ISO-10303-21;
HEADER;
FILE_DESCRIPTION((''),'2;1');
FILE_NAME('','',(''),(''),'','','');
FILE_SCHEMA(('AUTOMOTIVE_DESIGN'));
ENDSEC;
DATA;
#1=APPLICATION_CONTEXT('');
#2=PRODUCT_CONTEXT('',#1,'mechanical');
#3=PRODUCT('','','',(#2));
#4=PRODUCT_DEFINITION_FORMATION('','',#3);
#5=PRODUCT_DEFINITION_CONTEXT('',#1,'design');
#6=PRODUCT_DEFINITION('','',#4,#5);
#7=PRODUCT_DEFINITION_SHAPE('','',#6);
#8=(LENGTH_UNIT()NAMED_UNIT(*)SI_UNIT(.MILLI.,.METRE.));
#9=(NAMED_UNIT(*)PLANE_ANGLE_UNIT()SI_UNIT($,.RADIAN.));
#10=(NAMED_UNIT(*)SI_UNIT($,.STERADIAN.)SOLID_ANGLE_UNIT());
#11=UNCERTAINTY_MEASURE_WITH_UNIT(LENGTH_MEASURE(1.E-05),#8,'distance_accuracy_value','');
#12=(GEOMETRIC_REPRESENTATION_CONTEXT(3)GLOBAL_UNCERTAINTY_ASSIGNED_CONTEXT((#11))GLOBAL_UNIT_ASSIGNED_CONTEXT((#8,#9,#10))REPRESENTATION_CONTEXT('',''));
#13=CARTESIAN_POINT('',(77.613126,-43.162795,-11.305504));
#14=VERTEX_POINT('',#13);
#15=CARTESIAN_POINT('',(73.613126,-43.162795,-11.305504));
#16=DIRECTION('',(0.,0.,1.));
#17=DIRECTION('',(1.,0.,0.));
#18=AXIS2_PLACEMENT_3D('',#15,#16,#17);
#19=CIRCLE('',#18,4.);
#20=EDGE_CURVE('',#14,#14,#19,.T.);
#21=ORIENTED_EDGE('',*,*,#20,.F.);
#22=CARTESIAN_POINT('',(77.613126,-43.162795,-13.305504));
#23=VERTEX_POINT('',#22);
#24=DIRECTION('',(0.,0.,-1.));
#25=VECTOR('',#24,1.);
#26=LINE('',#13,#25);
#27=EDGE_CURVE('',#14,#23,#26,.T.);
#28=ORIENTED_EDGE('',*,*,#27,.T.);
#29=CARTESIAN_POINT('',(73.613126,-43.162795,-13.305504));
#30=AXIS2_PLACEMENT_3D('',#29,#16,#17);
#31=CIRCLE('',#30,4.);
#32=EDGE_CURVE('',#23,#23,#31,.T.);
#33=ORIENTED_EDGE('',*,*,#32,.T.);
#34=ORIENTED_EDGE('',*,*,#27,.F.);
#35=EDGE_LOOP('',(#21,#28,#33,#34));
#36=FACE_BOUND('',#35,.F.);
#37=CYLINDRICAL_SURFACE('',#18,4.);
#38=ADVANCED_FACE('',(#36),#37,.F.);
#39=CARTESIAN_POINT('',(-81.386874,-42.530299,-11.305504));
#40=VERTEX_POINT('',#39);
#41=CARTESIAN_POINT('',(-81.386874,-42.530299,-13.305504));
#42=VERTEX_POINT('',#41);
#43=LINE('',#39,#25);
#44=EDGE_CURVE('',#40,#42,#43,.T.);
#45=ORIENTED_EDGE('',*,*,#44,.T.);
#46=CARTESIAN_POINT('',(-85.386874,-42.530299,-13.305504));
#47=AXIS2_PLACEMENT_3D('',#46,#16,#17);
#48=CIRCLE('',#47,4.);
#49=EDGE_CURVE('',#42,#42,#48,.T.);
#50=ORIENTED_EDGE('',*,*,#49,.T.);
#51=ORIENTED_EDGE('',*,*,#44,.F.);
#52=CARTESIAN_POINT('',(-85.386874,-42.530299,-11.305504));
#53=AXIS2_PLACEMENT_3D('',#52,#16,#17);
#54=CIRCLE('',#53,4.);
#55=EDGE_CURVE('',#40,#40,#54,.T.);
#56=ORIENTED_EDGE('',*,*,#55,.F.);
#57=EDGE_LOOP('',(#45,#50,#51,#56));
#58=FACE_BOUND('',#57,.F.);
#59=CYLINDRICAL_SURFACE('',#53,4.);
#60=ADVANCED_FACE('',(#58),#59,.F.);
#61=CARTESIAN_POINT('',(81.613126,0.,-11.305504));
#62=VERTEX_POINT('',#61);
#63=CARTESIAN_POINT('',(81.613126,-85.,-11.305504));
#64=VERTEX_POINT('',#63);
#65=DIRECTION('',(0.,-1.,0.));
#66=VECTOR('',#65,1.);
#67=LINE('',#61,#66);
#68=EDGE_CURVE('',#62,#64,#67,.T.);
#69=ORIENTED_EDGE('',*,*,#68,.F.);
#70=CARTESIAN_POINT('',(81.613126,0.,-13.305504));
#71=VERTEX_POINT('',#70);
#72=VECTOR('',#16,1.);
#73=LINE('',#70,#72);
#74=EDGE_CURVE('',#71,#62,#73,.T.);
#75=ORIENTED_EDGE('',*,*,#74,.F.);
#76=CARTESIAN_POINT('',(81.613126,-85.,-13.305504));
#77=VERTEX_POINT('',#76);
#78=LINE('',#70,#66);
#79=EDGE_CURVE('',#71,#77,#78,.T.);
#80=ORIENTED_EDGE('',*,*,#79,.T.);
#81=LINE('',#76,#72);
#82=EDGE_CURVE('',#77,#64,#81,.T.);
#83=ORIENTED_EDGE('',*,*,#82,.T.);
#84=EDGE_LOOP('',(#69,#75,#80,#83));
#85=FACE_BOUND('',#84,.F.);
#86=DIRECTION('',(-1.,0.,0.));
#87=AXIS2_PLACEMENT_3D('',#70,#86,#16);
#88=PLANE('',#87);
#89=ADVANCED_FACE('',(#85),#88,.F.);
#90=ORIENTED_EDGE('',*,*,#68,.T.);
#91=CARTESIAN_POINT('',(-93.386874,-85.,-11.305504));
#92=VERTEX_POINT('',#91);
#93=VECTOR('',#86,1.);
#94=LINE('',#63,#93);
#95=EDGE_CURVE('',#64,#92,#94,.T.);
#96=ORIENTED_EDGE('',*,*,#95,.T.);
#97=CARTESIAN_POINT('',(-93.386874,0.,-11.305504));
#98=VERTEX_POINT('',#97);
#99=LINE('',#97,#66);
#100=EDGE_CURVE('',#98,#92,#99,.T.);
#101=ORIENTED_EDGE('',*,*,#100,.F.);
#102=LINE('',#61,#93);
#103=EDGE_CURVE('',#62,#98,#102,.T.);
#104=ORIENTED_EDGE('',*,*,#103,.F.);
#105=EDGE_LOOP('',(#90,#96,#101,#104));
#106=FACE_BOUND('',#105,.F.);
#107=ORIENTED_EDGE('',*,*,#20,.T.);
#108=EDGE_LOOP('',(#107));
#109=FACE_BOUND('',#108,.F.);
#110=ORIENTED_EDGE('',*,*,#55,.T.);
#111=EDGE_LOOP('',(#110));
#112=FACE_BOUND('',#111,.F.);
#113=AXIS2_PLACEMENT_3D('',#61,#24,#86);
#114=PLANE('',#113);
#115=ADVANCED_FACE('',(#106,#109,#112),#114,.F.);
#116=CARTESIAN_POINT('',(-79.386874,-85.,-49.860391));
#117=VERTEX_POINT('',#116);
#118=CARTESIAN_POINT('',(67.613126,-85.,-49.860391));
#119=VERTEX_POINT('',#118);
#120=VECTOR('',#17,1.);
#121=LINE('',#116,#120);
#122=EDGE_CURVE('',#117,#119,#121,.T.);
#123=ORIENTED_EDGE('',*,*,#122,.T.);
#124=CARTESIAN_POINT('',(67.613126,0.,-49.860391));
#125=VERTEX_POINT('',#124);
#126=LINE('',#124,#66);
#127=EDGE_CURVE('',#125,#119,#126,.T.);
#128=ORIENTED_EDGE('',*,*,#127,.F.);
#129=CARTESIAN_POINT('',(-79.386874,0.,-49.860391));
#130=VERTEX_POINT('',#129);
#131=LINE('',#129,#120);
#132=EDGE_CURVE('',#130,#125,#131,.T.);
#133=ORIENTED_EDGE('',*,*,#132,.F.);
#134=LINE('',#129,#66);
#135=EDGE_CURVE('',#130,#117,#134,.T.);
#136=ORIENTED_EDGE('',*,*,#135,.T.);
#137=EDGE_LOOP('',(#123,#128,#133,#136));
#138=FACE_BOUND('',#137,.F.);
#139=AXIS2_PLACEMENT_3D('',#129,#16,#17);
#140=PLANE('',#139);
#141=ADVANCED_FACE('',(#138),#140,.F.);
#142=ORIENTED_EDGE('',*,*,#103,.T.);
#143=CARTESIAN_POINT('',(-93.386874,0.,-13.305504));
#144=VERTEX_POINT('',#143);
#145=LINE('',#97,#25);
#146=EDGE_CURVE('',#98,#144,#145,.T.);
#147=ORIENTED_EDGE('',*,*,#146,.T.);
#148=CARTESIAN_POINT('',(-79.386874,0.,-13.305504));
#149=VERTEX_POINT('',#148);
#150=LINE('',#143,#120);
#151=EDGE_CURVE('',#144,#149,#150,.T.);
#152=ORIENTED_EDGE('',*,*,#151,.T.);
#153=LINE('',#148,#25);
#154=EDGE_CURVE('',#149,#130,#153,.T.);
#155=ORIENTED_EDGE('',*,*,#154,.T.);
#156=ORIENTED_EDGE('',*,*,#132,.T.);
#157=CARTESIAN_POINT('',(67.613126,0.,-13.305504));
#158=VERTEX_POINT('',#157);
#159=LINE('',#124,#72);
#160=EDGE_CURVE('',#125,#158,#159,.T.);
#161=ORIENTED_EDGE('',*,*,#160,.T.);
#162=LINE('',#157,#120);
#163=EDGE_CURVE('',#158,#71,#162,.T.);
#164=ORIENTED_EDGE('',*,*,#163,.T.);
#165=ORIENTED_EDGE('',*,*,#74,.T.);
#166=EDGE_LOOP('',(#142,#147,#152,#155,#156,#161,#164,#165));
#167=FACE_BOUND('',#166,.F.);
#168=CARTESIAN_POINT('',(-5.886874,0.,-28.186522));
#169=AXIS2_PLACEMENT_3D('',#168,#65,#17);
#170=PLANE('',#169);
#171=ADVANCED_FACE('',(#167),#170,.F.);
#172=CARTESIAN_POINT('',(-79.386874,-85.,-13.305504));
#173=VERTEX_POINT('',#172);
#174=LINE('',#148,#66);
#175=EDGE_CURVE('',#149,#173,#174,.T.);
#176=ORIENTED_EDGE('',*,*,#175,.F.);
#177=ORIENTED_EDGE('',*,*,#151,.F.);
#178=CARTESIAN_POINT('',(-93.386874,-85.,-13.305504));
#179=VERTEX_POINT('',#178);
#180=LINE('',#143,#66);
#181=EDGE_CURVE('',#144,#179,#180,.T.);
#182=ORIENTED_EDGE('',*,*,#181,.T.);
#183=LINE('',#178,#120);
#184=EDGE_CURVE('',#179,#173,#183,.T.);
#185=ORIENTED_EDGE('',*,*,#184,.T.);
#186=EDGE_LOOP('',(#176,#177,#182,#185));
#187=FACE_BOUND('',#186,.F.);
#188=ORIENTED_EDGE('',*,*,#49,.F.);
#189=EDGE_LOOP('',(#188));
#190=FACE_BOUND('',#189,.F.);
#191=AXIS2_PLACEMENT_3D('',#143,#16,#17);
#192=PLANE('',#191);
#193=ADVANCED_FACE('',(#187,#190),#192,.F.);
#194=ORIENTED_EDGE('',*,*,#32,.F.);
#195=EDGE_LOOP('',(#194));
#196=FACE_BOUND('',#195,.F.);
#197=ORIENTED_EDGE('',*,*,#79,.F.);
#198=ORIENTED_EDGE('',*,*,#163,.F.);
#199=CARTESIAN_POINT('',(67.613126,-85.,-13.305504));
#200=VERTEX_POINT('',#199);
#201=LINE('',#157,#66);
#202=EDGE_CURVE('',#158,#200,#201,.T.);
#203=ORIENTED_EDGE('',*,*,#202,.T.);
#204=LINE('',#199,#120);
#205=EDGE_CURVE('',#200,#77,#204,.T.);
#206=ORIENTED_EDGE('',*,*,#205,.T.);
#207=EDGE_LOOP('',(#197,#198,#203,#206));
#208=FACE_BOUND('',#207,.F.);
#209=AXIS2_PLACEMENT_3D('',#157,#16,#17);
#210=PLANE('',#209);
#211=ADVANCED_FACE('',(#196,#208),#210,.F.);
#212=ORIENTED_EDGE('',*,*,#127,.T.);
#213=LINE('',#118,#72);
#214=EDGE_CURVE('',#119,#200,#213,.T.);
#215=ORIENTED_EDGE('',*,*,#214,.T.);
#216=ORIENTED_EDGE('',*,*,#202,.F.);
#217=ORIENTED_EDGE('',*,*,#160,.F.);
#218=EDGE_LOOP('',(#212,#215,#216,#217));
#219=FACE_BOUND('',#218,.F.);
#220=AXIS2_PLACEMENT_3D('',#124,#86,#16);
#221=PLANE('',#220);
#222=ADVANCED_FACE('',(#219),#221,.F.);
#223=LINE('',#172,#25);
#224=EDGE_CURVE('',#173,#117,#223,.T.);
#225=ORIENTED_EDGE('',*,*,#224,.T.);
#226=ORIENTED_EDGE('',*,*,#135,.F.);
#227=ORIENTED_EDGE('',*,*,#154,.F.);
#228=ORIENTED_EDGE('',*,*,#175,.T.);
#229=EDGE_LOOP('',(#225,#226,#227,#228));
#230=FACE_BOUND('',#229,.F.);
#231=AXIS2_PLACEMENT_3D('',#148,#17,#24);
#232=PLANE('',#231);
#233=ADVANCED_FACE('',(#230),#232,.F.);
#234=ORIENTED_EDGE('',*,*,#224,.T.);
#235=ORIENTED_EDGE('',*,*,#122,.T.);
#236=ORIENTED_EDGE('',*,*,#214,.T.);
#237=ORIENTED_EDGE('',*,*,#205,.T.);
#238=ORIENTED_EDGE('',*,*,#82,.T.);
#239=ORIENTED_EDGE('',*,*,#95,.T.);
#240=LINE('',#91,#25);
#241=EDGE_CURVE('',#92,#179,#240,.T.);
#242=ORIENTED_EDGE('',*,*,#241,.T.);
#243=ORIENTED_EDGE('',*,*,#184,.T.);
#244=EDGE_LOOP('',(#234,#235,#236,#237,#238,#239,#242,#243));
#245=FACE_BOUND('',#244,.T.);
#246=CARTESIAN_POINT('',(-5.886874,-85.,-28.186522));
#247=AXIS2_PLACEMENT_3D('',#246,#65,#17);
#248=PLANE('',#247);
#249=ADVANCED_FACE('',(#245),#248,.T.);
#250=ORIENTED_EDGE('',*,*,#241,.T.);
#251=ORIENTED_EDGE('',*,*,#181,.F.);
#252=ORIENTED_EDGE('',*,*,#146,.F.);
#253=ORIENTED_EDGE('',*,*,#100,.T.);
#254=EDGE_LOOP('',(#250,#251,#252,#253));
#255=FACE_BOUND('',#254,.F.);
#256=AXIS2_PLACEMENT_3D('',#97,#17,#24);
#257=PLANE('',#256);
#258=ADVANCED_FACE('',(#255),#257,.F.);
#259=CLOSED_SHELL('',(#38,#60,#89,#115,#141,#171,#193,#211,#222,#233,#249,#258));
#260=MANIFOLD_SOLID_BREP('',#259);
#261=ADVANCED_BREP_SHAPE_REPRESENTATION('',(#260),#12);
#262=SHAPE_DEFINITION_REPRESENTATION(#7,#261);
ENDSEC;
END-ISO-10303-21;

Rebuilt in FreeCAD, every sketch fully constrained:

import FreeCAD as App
import Part
import Sketcher
from FreeCAD import Vector


def add_polygon(sketch, points):
    """Adds a closed chain of lines whose ends are joined by coincident constraints."""
    first, n = sketch.GeometryCount, len(points)
    for a, b in zip(points, points[1:] + points[:1]):
        sketch.addGeometry(Part.LineSegment(App.Vector(*a, 0), App.Vector(*b, 0)), False)
    for i in range(n):
        sketch.addConstraint(Sketcher.Constraint("Coincident", first + i, 2, first + (i + 1) % n, 1))

doc = App.newDocument("Part")
params = doc.addObject("Spreadsheet::Sheet", "Params")
for row, (alias, value) in enumerate([
    ("sketch1_width", "14 mm"),
    ("sketch1_width2", "147 mm"),
    ("sketch1_height", "2 mm"),
    ("pad1_length", "85 mm"),
    ("sketch2_diameter", "8 mm"),
    ("pocket1_length", "25 mm"),
], start=1):
    params.set(f"A{row}", alias)
    params.set(f"B{row}", "=" + value)
    params.setAlias(f"B{row}", alias)

body = doc.addObject("PartDesign::Body", "Body")

sketch1 = doc.addObject("Sketcher::SketchObject", "Sketch")
body.addObject(sketch1)
sketch1.AttachmentSupport = (doc.XZ_Plane, [""])
sketch1.MapMode = "FlatFace"
add_polygon(sketch1, [(-93.4, -11.3), (-93.4, -13.3), (-79.4, -13.3), (-79.4, -49.9), (67.6, -49.9), (67.6, -13.3), (81.6, -13.3), (81.6, -11.3)])
sketch1.addConstraint([
    Sketcher.Constraint("Vertical", 0),
    Sketcher.Constraint("Horizontal", 1),
    Sketcher.Constraint("Vertical", 2),
    Sketcher.Constraint("Horizontal", 3),
    Sketcher.Constraint("Vertical", 4),
    Sketcher.Constraint("Horizontal", 5),
    Sketcher.Constraint("Vertical", 6),
    Sketcher.Constraint("Horizontal", 7),
    Sketcher.Constraint("Horizontal", 1, 2, 4, 2),
    Sketcher.Constraint("Equal", 1, 5),
    Sketcher.Constraint("DistanceX", 1, 1, 1, 2, 14.0),
    Sketcher.Constraint("DistanceX", 3, 1, 3, 2, 147.0),
    Sketcher.Constraint("DistanceY", 0, 2, 0, 1, 2.0),
    Sketcher.Constraint("DistanceY", 2, 2, 2, 1, 36.554887),
    Sketcher.Constraint("DistanceY", 2, 2, -1, 1, 49.860391),
    Sketcher.Constraint("DistanceX", 0, 2, -1, 1, 93.386874),
])
sketch1.setExpression("Constraints[18]", "Params.sketch1_width")
sketch1.setExpression("Constraints[19]", "Params.sketch1_width2")
sketch1.setExpression("Constraints[20]", "Params.sketch1_height")
pad1 = doc.addObject("PartDesign::Pad", "Pad")
body.addObject(pad1)
pad1.Profile = sketch1
pad1.setExpression("Length", "Params.pad1_length")

sketch2 = doc.addObject("Sketcher::SketchObject", "Sketch001")
body.addObject(sketch2)
sketch2.AttachmentSupport = (doc.XY_Plane, [""])
sketch2.MapMode = "FlatFace"
sketch2.AttachmentOffset = App.Placement(Vector(0, 0, -11.305504), App.Rotation())
sketch2.addGeometry([
    Part.Circle(Vector(-85.4, -42.5, 0), Vector(0, 0, 1), 4),
    Part.Circle(Vector(73.6, -43.2, 0), Vector(0, 0, 1), 4),
], False)
sketch2.addConstraint([
    Sketcher.Constraint("Equal", 0, 1),
    Sketcher.Constraint("Diameter", 0, 8.0),
    Sketcher.Constraint("DistanceX", 0, 3, 1, 3, 159.0),
    Sketcher.Constraint("DistanceY", 0, 3, -1, 1, 42.530299),
    Sketcher.Constraint("DistanceX", 0, 3, -1, 1, 85.386874),
    Sketcher.Constraint("DistanceY", 1, 3, -1, 1, 43.162795),
])
sketch2.setExpression("Constraints[1]", "Params.sketch2_diameter")
pocket1 = doc.addObject("PartDesign::Pocket", "Pocket")
body.addObject(pocket1)
pocket1.Profile = sketch2
pocket1.setExpression("Length", "Params.pocket1_length")

doc.recompute()
